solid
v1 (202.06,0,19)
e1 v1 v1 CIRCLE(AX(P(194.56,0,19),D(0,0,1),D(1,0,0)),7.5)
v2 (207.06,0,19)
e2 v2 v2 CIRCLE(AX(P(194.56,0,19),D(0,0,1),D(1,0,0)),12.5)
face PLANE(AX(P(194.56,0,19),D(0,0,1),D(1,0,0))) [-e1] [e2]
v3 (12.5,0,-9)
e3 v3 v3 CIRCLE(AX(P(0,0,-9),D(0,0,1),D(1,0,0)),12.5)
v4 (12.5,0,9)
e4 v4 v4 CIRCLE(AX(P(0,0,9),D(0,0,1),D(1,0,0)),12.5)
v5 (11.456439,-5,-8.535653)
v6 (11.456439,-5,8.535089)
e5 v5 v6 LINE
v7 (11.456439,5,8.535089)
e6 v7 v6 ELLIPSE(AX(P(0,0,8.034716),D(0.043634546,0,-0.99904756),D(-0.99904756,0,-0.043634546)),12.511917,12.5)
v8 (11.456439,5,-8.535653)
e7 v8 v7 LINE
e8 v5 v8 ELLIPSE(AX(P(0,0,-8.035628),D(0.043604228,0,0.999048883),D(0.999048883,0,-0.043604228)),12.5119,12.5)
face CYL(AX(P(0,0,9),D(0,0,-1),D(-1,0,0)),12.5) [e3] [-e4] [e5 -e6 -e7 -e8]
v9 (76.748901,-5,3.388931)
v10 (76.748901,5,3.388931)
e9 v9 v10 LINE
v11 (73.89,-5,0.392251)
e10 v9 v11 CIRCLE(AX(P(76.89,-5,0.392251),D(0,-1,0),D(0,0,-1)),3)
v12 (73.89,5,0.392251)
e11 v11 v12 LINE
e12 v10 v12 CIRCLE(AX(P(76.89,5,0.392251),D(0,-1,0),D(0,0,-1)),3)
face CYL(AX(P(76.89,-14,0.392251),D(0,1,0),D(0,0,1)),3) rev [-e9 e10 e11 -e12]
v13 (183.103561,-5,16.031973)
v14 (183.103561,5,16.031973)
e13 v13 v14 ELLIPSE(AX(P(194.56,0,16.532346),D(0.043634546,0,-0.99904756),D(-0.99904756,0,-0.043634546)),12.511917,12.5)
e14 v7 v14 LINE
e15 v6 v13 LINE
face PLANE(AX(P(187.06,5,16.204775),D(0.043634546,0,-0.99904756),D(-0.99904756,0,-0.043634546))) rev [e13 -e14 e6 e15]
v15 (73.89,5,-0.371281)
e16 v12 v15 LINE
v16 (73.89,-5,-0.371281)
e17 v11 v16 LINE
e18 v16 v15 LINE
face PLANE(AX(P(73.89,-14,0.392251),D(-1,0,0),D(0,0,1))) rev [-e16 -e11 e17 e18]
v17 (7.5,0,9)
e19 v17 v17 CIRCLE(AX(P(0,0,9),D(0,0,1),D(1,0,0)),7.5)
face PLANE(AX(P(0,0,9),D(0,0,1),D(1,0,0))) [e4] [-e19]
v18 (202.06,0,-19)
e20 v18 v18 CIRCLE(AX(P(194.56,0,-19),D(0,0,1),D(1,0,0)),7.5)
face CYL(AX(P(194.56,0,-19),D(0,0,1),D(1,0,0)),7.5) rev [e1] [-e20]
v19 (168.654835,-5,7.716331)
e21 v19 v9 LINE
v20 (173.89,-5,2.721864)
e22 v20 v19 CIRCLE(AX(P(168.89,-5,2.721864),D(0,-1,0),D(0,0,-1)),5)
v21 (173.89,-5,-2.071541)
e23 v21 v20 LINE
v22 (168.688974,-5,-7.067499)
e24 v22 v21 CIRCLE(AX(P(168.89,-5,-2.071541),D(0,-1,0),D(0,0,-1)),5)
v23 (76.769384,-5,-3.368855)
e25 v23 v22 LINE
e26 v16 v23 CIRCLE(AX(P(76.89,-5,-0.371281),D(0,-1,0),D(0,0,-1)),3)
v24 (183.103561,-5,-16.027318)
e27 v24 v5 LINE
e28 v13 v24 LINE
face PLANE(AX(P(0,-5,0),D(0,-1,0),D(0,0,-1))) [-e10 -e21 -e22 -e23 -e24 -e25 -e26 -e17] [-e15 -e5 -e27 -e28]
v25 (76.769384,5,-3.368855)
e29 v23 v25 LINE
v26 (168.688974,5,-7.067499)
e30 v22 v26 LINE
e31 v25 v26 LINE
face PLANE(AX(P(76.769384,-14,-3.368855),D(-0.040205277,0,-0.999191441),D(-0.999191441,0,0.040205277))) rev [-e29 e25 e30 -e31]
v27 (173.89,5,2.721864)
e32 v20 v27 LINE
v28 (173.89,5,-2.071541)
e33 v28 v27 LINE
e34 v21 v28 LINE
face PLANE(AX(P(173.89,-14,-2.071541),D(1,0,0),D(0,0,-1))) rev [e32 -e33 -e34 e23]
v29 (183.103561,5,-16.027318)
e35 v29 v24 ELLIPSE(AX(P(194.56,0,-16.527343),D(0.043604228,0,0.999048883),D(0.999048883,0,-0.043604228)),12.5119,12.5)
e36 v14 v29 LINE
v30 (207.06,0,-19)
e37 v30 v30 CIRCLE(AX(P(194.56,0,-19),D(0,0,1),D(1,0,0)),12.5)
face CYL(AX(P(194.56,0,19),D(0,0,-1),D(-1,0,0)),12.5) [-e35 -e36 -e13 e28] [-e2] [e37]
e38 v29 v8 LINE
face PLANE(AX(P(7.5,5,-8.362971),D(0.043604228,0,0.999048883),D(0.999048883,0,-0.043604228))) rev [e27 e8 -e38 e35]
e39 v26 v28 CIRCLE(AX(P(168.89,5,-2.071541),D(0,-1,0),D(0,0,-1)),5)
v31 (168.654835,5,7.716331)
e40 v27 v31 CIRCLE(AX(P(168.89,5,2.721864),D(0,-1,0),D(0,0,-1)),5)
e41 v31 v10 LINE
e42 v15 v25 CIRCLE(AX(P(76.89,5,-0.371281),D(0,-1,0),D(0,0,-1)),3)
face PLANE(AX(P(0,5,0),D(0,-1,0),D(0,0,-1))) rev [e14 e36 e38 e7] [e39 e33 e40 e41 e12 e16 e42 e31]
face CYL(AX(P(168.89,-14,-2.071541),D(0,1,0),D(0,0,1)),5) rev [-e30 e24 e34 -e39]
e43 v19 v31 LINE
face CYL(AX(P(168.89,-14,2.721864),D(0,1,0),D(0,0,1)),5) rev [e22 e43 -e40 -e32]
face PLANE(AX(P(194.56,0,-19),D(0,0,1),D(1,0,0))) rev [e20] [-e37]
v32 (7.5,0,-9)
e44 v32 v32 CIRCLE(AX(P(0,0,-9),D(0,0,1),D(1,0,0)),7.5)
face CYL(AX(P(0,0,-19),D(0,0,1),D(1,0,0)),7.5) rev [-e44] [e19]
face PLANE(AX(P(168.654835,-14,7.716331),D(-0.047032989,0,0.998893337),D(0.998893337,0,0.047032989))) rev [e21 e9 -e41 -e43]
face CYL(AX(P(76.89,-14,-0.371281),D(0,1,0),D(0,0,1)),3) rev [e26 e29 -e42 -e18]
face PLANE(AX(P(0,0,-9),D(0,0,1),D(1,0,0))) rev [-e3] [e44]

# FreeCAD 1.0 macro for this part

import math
import FreeCAD as App
import Part
import Sketcher
from FreeCAD import Vector
Q = App.Units.Quantity


def add_polygon(sketch, points):
    """Adds a closed chain of lines whose ends are joined by coincident constraints."""
    first, n = sketch.GeometryCount, len(points)
    for a, b in zip(points, points[1:] + points[:1]):
        sketch.addGeometry(Part.LineSegment(App.Vector(*a, 0), App.Vector(*b, 0)), False)
    for i in range(n):
        sketch.addConstraint(Sketcher.Constraint("Coincident", first + i, 2, first + (i + 1) % n, 1))

doc = App.newDocument("Part")
body = doc.addObject("PartDesign::Body", "Body")

sketch1 = doc.addObject("Sketcher::SketchObject", "Sketch")
body.addObject(sketch1)
sketch1.AttachmentSupport = (doc.XY_Plane, [""])
sketch1.MapMode = "FlatFace"
sketch1.addGeometry(Part.Circle(Vector(0, 0, 0), Vector(0, 0, 1), 8), False)
sketch1.addConstraint(Sketcher.Constraint("Coincident", 0, 3, -1, 1))
sketch1.addConstraint(Sketcher.Constraint("Diameter", 0, Q("15 mm")))
pad1 = doc.addObject("PartDesign::Pad", "Pad")
body.addObject(pad1)
pad1.Profile = sketch1
pad1.Length = 18
pad1.Midplane = True
body2 = doc.addObject("PartDesign::Body", "Body001")

sketch2 = doc.addObject("Sketcher::SketchObject", "Sketch001")
body2.addObject(sketch2)
sketch2.AttachmentSupport = (doc.getObject("XY_Plane001"), [""])
sketch2.MapMode = "FlatFace"
sketch2.addGeometry(Part.Circle(Vector(195, 0, 0), Vector(0, 0, 1), 8), False)
sketch2.addConstraint(Sketcher.Constraint("PointOnObject", 0, 3, -1))
sketch2.addConstraint(Sketcher.Constraint("Diameter", 0, Q("15 mm")))
sketch2.addConstraint(Sketcher.Constraint("DistanceX", -1, 1, 0, 3, Q("194.56 mm")))
pad2 = doc.addObject("PartDesign::Pad", "Pad001")
body2.addObject(pad2)
pad2.Profile = sketch2
pad2.Length = 38
pad2.Midplane = True
body3 = doc.addObject("PartDesign::Body", "Body002")

sketch3 = doc.addObject("Sketcher::SketchObject", "Sketch002")
body3.addObject(sketch3)
sketch3.AttachmentSupport = (doc.getObject("XZ_Plane002"), [""])
sketch3.MapMode = "FlatFace"
add_polygon(sketch3, [(187, -16), (8, -8), (8, 8), (187, 16)])
sketch3.addConstraint(Sketcher.Constraint("Vertical", 1))
sketch3.addConstraint(Sketcher.Constraint("Vertical", 3))
sketch3.addConstraint(Sketcher.Constraint("DistanceX", -1, 1, 0, 2, Q("7.5 mm")))
sketch3.addConstraint(Sketcher.Constraint("DistanceY", 3, 2, -1, 1, Q("16.2 mm")))
sketch3.addConstraint(Sketcher.Constraint("DistanceX", -1, 1, 2, 2, Q("187.06 mm")))
sketch3.addConstraint(Sketcher.Constraint("DistanceY", 1, 1, 1, 2, Q("16.725258 mm")))
sketch3.addConstraint(Sketcher.Constraint("DistanceY", 3, 2, 3, 1, Q("32.404775 mm")))
sketch3.addConstraint(Sketcher.Constraint("DistanceY", 0, 2, -1, 1, Q("8.362971 mm")))
pad3 = doc.addObject("PartDesign::Pad", "Pad002")
body3.addObject(pad3)
pad3.Profile = sketch3
pad3.Length = 10
pad3.Midplane = True
body.AllowCompound = True
doc.recompute()

boolean = doc.addObject("PartDesign::Boolean", "Boolean")
body.addObject(boolean)
boolean.Type = "Fuse"
boolean.addObjects([body3])

sketch4 = doc.addObject("Sketcher::SketchObject", "Sketch003")
body.addObject(sketch4)
sketch4.AttachmentSupport = (doc.XY_Plane, [""])
sketch4.MapMode = "FlatFace"
sketch4.addGeometry(Part.Circle(Vector(0, 0, 0), Vector(0, 0, 1), 12), False)
sketch4.addConstraint(Sketcher.Constraint("Coincident", 0, 3, -1, 1))
sketch4.addConstraint(Sketcher.Constraint("Diameter", 0, Q("25 mm")))
pad4 = doc.addObject("PartDesign::Pad", "Pad003")
body.addObject(pad4)
pad4.Profile = sketch4
pad4.Length = 18
pad4.Midplane = True
doc.recompute()

boolean2 = doc.addObject("PartDesign::Boolean", "Boolean001")
body.addObject(boolean2)
boolean2.Type = "Fuse"
boolean2.addObjects([body2])

sketch5 = doc.addObject("Sketcher::SketchObject", "Sketch004")
body.addObject(sketch5)
sketch5.AttachmentSupport = (doc.XY_Plane, [""])
sketch5.MapMode = "FlatFace"
sketch5.addGeometry(Part.Circle(Vector(195, 0, 0), Vector(0, 0, 1), 12), False)
sketch5.addConstraint(Sketcher.Constraint("PointOnObject", 0, 3, -1))
sketch5.addConstraint(Sketcher.Constraint("Diameter", 0, Q("25 mm")))
sketch5.addConstraint(Sketcher.Constraint("DistanceX", -1, 1, 0, 3, Q("194.56 mm")))
pad5 = doc.addObject("PartDesign::Pad", "Pad004")
body.addObject(pad5)
pad5.Profile = sketch5
pad5.Length = 38
pad5.Midplane = True

sketch6 = doc.addObject("Sketcher::SketchObject", "Sketch005")
body.addObject(sketch6)
sketch6.AttachmentSupport = (doc.XY_Plane, [""])
sketch6.MapMode = "FlatFace"
sketch6.addGeometry(Part.Circle(Vector(0, 0, 0), Vector(0, 0, 1), 8), False)
sketch6.addGeometry(Part.Circle(Vector(195, 0, 0), Vector(0, 0, 1), 8), False)
sketch6.addConstraint(Sketcher.Constraint("Coincident", 0, 3, -1, 1))
sketch6.addConstraint(Sketcher.Constraint("Equal", 0, 1))
sketch6.addConstraint(Sketcher.Constraint("PointOnObject", 1, 3, -1))
sketch6.addConstraint(Sketcher.Constraint("Diameter", 0, Q("15 mm")))
sketch6.addConstraint(Sketcher.Constraint("DistanceX", -1, 1, 1, 3, Q("194.56 mm")))
pocket1 = doc.addObject("PartDesign::Pocket", "Pocket")
body.addObject(pocket1)
pocket1.Profile = sketch6
pocket1.Length = 38
pocket1.Midplane = True

sketch7 = doc.addObject("Sketcher::SketchObject", "Sketch006")
body.addObject(sketch7)
sketch7.AttachmentSupport = (doc.XZ_Plane, [""])
sketch7.MapMode = "FlatFace"
sketch7.AttachmentOffset = App.Placement(Vector(0, 0, -5), App.Rotation())
sketch7.addGeometry(Part.LineSegment(Vector(168.7, -7.1, 0), Vector(76.8, -3.4, 0)), False)
sketch7.addGeometry(Part.ArcOfCircle(Part.Circle(Vector(76.9, -0.4, 0), Vector(0, 0, 1), 3), math.radians(180), math.radians(268)), False)
sketch7.addGeometry(Part.LineSegment(Vector(73.9, -0.4, 0), Vector(73.9, 0.4, 0)), False)
sketch7.addGeometry(Part.ArcOfCircle(Part.Circle(Vector(76.9, 0.4, 0), Vector(0, 0, 1), 3), math.radians(93), math.radians(180)), False)
sketch7.addGeometry(Part.LineSegment(Vector(76.7, 3.4, 0), Vector(168.7, 7.7, 0)), False)
sketch7.addGeometry(Part.ArcOfCircle(Part.Circle(Vector(168.9, 2.7, 0), Vector(0, 0, 1), 5), math.radians(0), math.radians(93)), False)
sketch7.addGeometry(Part.LineSegment(Vector(173.9, 2.7, 0), Vector(173.9, -2.1, 0)), False)
sketch7.addGeometry(Part.ArcOfCircle(Part.Circle(Vector(168.9, -2.1, 0), Vector(0, 0, 1), 5), math.radians(-92), math.radians(0)), False)
sketch7.addConstraint(Sketcher.Constraint("Tangent", 0, 2, 1, 2))
sketch7.addConstraint(Sketcher.Constraint("Tangent", 1, 1, 2, 1))
sketch7.addConstraint(Sketcher.Constraint("Tangent", 2, 2, 3, 2))
sketch7.addConstraint(Sketcher.Constraint("Tangent", 3, 1, 4, 1))
sketch7.addConstraint(Sketcher.Constraint("Tangent", 4, 2, 5, 2))
sketch7.addConstraint(Sketcher.Constraint("Tangent", 5, 1, 6, 1))
sketch7.addConstraint(Sketcher.Constraint("Tangent", 6, 2, 7, 2))
sketch7.addConstraint(Sketcher.Constraint("Tangent", 7, 1, 0, 1))
sketch7.addConstraint(Sketcher.Constraint("Vertical", 2))
sketch7.addConstraint(Sketcher.Constraint("Vertical", 6))
sketch7.addConstraint(Sketcher.Constraint("Equal", 1, 3))
sketch7.addConstraint(Sketcher.Constraint("Equal", 5, 7))
sketch7.addConstraint(Sketcher.Constraint("Radius", 1, Q("3 mm")))
sketch7.addConstraint(Sketcher.Constraint("Radius", 5, Q("5 mm")))
sketch7.addConstraint(Sketcher.Constraint("DistanceX", 3, 3, 5, 3, Q("92 mm")))
sketch7.addConstraint(Sketcher.Constraint("DistanceX", -1, 1, 1, 3, Q("76.89 mm")))
sketch7.addConstraint(Sketcher.Constraint("DistanceX", -1, 1, 3, 1, Q("76.748901 mm")))
sketch7.addConstraint(Sketcher.Constraint("DistanceY", 7, 1, -1, 1, Q("7.067499 mm")))
sketch7.addConstraint(Sketcher.Constraint("DistanceY", 2, 1, 2, 2, Q("0.763532 mm")))
sketch7.addConstraint(Sketcher.Constraint("DistanceY", 6, 2, 6, 1, Q("4.793405 mm")))
pocket2 = doc.addObject("PartDesign::Pocket", "Pocket001")
body.addObject(pocket2)
pocket2.Profile = sketch7
pocket2.Length = 38
pocket2.Midplane = True

doc.recompute()
